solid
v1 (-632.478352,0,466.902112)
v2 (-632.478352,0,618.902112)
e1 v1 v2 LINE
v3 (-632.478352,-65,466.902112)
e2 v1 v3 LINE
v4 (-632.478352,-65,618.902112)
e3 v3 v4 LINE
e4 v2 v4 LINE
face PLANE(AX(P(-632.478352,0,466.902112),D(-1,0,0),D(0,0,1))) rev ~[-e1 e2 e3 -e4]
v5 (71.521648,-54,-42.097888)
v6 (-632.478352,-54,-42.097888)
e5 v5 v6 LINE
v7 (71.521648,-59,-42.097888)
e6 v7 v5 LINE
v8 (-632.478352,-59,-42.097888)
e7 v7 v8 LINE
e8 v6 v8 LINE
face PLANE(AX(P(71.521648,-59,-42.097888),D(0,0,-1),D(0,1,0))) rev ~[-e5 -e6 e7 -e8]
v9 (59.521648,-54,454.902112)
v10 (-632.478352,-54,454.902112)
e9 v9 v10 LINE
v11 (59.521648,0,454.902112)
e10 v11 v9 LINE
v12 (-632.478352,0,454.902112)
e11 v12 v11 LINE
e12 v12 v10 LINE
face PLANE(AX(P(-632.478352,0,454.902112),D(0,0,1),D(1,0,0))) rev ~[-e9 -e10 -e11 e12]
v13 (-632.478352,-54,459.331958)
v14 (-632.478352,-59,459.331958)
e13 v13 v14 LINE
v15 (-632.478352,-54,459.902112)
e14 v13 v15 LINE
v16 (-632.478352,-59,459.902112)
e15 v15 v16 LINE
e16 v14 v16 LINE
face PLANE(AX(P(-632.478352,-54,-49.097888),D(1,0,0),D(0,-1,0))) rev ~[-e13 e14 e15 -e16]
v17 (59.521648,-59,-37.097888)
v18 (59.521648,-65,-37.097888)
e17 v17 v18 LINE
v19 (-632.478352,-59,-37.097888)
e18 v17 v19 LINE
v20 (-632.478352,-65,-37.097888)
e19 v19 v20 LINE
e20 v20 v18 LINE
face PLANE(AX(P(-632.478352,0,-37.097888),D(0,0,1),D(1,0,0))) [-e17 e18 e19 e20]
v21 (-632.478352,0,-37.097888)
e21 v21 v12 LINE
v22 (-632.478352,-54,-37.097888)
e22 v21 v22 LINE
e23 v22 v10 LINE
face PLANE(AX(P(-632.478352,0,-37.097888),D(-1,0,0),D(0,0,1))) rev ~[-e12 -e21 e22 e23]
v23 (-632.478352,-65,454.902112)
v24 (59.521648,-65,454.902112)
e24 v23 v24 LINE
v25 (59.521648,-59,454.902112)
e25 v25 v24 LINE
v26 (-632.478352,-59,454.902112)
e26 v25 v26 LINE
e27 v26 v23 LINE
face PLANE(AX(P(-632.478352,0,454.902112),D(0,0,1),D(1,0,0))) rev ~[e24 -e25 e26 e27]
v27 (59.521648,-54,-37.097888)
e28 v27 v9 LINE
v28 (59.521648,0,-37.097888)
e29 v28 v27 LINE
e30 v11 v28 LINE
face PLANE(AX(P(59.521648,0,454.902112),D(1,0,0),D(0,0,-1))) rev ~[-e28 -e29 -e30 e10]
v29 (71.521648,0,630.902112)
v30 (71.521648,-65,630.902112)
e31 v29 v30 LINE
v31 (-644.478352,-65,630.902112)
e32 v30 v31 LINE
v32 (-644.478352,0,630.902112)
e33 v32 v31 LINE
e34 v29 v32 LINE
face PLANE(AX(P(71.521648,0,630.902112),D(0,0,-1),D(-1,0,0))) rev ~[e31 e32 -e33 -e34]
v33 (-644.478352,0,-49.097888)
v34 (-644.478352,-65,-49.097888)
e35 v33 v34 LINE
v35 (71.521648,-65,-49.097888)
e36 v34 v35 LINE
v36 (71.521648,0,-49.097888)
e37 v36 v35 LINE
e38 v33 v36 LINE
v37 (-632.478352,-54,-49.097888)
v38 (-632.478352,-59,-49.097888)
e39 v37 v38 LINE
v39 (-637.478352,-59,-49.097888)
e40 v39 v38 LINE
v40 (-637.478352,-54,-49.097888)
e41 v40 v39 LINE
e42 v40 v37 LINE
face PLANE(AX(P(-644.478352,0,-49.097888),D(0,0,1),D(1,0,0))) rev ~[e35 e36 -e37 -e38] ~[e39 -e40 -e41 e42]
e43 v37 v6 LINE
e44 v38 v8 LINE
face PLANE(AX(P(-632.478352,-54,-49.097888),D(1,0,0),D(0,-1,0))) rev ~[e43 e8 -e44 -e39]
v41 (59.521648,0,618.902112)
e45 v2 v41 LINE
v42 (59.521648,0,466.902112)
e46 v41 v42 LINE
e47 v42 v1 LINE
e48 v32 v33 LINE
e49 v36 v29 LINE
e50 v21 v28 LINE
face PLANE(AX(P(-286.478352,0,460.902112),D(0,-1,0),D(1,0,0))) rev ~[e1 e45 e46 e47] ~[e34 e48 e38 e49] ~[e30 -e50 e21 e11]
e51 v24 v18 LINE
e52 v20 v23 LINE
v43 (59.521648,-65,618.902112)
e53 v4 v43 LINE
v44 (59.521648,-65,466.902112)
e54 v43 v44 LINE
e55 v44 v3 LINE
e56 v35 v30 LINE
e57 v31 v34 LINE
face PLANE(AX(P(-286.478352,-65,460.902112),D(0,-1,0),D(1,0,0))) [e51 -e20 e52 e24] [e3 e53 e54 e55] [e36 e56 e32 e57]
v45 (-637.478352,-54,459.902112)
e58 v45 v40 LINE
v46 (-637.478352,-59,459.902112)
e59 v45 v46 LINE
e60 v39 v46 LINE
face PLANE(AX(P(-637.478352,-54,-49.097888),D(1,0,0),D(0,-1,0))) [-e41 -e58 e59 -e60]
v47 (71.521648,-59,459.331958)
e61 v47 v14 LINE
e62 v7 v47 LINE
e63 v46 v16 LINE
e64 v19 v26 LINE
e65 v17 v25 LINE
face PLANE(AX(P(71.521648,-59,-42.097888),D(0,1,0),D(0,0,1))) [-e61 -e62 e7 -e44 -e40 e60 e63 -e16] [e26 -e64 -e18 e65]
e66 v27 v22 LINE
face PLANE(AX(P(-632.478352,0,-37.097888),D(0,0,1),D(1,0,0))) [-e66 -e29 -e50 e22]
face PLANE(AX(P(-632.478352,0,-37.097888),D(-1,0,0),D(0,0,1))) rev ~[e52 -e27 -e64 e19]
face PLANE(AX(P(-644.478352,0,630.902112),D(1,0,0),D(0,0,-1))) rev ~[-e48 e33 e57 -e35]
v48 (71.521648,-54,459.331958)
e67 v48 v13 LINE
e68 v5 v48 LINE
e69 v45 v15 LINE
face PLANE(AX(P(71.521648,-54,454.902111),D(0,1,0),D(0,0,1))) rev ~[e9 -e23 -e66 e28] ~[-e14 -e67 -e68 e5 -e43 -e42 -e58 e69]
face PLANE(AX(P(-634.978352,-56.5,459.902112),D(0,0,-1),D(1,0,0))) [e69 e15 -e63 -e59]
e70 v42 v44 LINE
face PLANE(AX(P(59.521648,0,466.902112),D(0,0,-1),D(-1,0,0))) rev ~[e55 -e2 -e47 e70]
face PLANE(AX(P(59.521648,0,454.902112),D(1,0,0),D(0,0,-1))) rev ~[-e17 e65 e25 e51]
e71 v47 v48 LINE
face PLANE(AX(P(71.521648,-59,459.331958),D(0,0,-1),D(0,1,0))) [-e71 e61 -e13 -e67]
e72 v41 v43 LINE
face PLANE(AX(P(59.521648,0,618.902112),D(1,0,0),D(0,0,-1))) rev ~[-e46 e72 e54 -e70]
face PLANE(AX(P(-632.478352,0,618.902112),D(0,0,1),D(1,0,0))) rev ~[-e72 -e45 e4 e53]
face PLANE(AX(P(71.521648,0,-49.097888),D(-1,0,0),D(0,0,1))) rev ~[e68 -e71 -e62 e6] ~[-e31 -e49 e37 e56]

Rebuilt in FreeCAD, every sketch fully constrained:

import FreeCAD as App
import Part
import Sketcher

V = App.Vector

doc = App.newDocument("Part")
body = doc.addObject("PartDesign::Body", "Body")

sketch1 = body.newObject("Sketcher::SketchObject", "Sketch")
sketch1.AttachmentSupport = (doc.getObject("XZ_Plane"), [""])
sketch1.MapMode = "FlatFace"
sketch1.addGeometry([
    Part.LineSegment(V(72, -49, 0), V(72, 631, 0)),
    Part.LineSegment(V(72, 631, 0), V(-644, 631, 0)),
    Part.LineSegment(V(-644, 631, 0), V(-644, -49, 0)),
    Part.LineSegment(V(-644, -49, 0), V(72, -49, 0)),
    Part.LineSegment(V(-632, 455, 0), V(60, 455, 0)),
    Part.LineSegment(V(60, 455, 0), V(60, -37, 0)),
    Part.LineSegment(V(60, -37, 0), V(-632, -37, 0)),
    Part.LineSegment(V(-632, -37, 0), V(-632, 455, 0)),
    Part.LineSegment(V(60, 467, 0), V(-632, 467, 0)),
    Part.LineSegment(V(-632, 467, 0), V(-632, 619, 0)),
    Part.LineSegment(V(-632, 619, 0), V(60, 619, 0)),
    Part.LineSegment(V(60, 619, 0), V(60, 467, 0)),
], False)
sketch1.addConstraint([
    Sketcher.Constraint("Coincident", 0, 2, 1, 1),
    Sketcher.Constraint("Coincident", 1, 2, 2, 1),
    Sketcher.Constraint("Coincident", 2, 2, 3, 1),
    Sketcher.Constraint("Coincident", 3, 2, 0, 1),
    Sketcher.Constraint("Coincident", 4, 2, 5, 1),
    Sketcher.Constraint("Coincident", 5, 2, 6, 1),
    Sketcher.Constraint("Coincident", 6, 2, 7, 1),
    Sketcher.Constraint("Coincident", 7, 2, 4, 1),
    Sketcher.Constraint("Coincident", 8, 2, 9, 1),
    Sketcher.Constraint("Coincident", 9, 2, 10, 1),
    Sketcher.Constraint("Coincident", 10, 2, 11, 1),
    Sketcher.Constraint("Coincident", 11, 2, 8, 1),
    Sketcher.Constraint("Vertical", 0),
    Sketcher.Constraint("Horizontal", 1),
    Sketcher.Constraint("Vertical", 2),
    Sketcher.Constraint("Horizontal", 3),
    Sketcher.Constraint("Horizontal", 4),
    Sketcher.Constraint("Vertical", 5),
    Sketcher.Constraint("Horizontal", 6),
    Sketcher.Constraint("Vertical", 7),
    Sketcher.Constraint("Horizontal", 8),
    Sketcher.Constraint("Vertical", 9),
    Sketcher.Constraint("Horizontal", 10),
    Sketcher.Constraint("Vertical", 11),
    Sketcher.Constraint("Vertical", 7, 2, 8, 2),
    Sketcher.Constraint("Vertical", 5, 2, 10, 2),
    Sketcher.Constraint("DistanceX", 1, 2, 1, 1, 716.0),
    Sketcher.Constraint("DistanceX", 4, 1, 4, 2, 692.0),
    Sketcher.Constraint("DistanceY", 0, 1, 0, 2, 680.0),
    Sketcher.Constraint("DistanceY", 5, 2, 5, 1, 492.0),
    Sketcher.Constraint("DistanceY", 9, 1, 9, 2, 152.0),
    Sketcher.Constraint("DistanceX", 4, 2, 0, 2, 12.0),
    Sketcher.Constraint("DistanceY", 4, 2, 0, 2, 176.0),
    Sketcher.Constraint("DistanceY", 7, 2, 8, 2, 12.0),
    Sketcher.Constraint("DistanceX", -1, 1, 0, 2, 71.521648),
    Sketcher.Constraint("DistanceY", -1, 1, 0, 2, 630.902112),
])
pad1 = body.newObject("PartDesign::Pad", "Pad")
pad1.Profile = sketch1
pad1.Length = 65

sketch2 = body.newObject("Sketcher::SketchObject", "Sketch001")
sketch2.AttachmentSupport = (doc.getObject("YZ_Plane"), [""])
sketch2.MapMode = "FlatFace"
sketch2.AttachmentOffset = App.Placement(V(0, 0, 71.521648), App.Rotation())
sketch2.addGeometry([
    Part.LineSegment(V(-59, -37, 0), V(-59, -42, 0)),
    Part.LineSegment(V(-59, -42, 0), V(-54, -42, 0)),
    Part.LineSegment(V(-54, -42, 0), V(-54, -37, 0)),
    Part.LineSegment(V(-54, -37, 0), V(-59, -37, 0)),
], False)
sketch2.addConstraint([
    Sketcher.Constraint("Coincident", 0, 2, 1, 1),
    Sketcher.Constraint("Coincident", 1, 2, 2, 1),
    Sketcher.Constraint("Coincident", 2, 2, 3, 1),
    Sketcher.Constraint("Coincident", 3, 2, 0, 1),
    Sketcher.Constraint("Vertical", 0),
    Sketcher.Constraint("Horizontal", 1),
    Sketcher.Constraint("Vertical", 2),
    Sketcher.Constraint("Horizontal", 3),
    Sketcher.Constraint("Equal", 3, 0),
    Sketcher.Constraint("DistanceX", 1, 1, 1, 2, 5.0),
    Sketcher.Constraint("DistanceX", 0, 2, -1, 1, 59.0),
    Sketcher.Constraint("DistanceY", 0, 2, -1, 1, 42.097888),
])
pocket1 = body.newObject("PartDesign::Pocket", "Pocket")
pocket1.Profile = sketch2
pocket1.Length = 709

sketch3 = body.newObject("Sketcher::SketchObject", "Sketch002")
sketch3.AttachmentSupport = (doc.getObject("YZ_Plane"), [""])
sketch3.MapMode = "FlatFace"
sketch3.AttachmentOffset = App.Placement(V(0, 0, 71.521648), App.Rotation())
sketch3.addGeometry([
    Part.LineSegment(V(-59, 459.3, 0), V(-59, 454.9, 0)),
    Part.LineSegment(V(-59, 454.9, 0), V(-54, 454.9, 0)),
    Part.LineSegment(V(-54, 454.9, 0), V(-54, 459.3, 0)),
    Part.LineSegment(V(-54, 459.3, 0), V(-59, 459.3, 0)),
], False)
sketch3.addConstraint([
    Sketcher.Constraint("Coincident", 0, 2, 1, 1),
    Sketcher.Constraint("Coincident", 1, 2, 2, 1),
    Sketcher.Constraint("Coincident", 2, 2, 3, 1),
    Sketcher.Constraint("Coincident", 3, 2, 0, 1),
    Sketcher.Constraint("Vertical", 0),
    Sketcher.Constraint("Horizontal", 1),
    Sketcher.Constraint("Vertical", 2),
    Sketcher.Constraint("Horizontal", 3),
    Sketcher.Constraint("DistanceX", 1, 1, 1, 2, 5.0),
    Sketcher.Constraint("DistanceX", 0, 2, -1, 1, 59.0),
    Sketcher.Constraint("DistanceY", 0, 2, 0, 1, 4.429847),
    Sketcher.Constraint("DistanceY", -1, 1, 0, 2, 454.902111),
])
pocket2 = body.newObject("PartDesign::Pocket", "Pocket001")
pocket2.Profile = sketch3
pocket2.Length = 709

sketch4 = body.newObject("Sketcher::SketchObject", "Sketch003")
sketch4.AttachmentSupport = (doc.getObject("XY_Plane"), [""])
sketch4.MapMode = "FlatFace"
sketch4.AttachmentOffset = App.Placement(V(0, 0, -49.097888), App.Rotation())
sketch4.addGeometry([
    Part.LineSegment(V(-637, -59, 0), V(-637, -54, 0)),
    Part.LineSegment(V(-637, -54, 0), V(-632, -54, 0)),
    Part.LineSegment(V(-632, -54, 0), V(-632, -59, 0)),
    Part.LineSegment(V(-632, -59, 0), V(-637, -59, 0)),
], False)
sketch4.addConstraint([
    Sketcher.Constraint("Coincident", 0, 2, 1, 1),
    Sketcher.Constraint("Coincident", 1, 2, 2, 1),
    Sketcher.Constraint("Coincident", 2, 2, 3, 1),
    Sketcher.Constraint("Coincident", 3, 2, 0, 1),
    Sketcher.Constraint("Vertical", 0),
    Sketcher.Constraint("Horizontal", 1),
    Sketcher.Constraint("Vertical", 2),
    Sketcher.Constraint("Horizontal", 3),
    Sketcher.Constraint("Equal", 3, 0),
    Sketcher.Constraint("DistanceX", 1, 1, 1, 2, 5.0),
    Sketcher.Constraint("DistanceY", 0, 2, -1, 1, 54.0),
    Sketcher.Constraint("DistanceX", 0, 2, -1, 1, 637.478352),
])
pocket3 = body.newObject("PartDesign::Pocket", "Pocket002")
pocket3.Profile = sketch4
pocket3.Length = 509
pocket3.Reversed = True

sketch5 = body.newObject("Sketcher::SketchObject", "Sketch004")
sketch5.AttachmentSupport = (doc.getObject("YZ_Plane"), [""])
sketch5.MapMode = "FlatFace"
sketch5.AttachmentOffset = App.Placement(V(0, 0, 71.521648), App.Rotation())
sketch5.addGeometry([
    Part.LineSegment(V(-59, 455, 0), V(-59, -37, 0)),
    Part.LineSegment(V(-59, -37, 0), V(-54, -37, 0)),
    Part.LineSegment(V(-54, -37, 0), V(-54, 455, 0)),
    Part.LineSegment(V(-54, 455, 0), V(-59, 455, 0)),
], False)
sketch5.addConstraint([
    Sketcher.Constraint("Coincident", 0, 2, 1, 1),
    Sketcher.Constraint("Coincident", 1, 2, 2, 1),
    Sketcher.Constraint("Coincident", 2, 2, 3, 1),
    Sketcher.Constraint("Coincident", 3, 2, 0, 1),
    Sketcher.Constraint("Vertical", 0),
    Sketcher.Constraint("Horizontal", 1),
    Sketcher.Constraint("Vertical", 2),
    Sketcher.Constraint("Horizontal", 3),
    Sketcher.Constraint("DistanceX", 1, 1, 1, 2, 5.0),
    Sketcher.Constraint("DistanceY", 0, 2, 0, 1, 492.0),
    Sketcher.Constraint("DistanceX", 0, 2, -1, 1, 59.0),
    Sketcher.Constraint("DistanceY", -1, 1, 2, 2, 454.902112),
])
pocket4 = body.newObject("PartDesign::Pocket", "Pocket003")
pocket4.Profile = sketch5
pocket4.Length = 12

doc.recompute()
